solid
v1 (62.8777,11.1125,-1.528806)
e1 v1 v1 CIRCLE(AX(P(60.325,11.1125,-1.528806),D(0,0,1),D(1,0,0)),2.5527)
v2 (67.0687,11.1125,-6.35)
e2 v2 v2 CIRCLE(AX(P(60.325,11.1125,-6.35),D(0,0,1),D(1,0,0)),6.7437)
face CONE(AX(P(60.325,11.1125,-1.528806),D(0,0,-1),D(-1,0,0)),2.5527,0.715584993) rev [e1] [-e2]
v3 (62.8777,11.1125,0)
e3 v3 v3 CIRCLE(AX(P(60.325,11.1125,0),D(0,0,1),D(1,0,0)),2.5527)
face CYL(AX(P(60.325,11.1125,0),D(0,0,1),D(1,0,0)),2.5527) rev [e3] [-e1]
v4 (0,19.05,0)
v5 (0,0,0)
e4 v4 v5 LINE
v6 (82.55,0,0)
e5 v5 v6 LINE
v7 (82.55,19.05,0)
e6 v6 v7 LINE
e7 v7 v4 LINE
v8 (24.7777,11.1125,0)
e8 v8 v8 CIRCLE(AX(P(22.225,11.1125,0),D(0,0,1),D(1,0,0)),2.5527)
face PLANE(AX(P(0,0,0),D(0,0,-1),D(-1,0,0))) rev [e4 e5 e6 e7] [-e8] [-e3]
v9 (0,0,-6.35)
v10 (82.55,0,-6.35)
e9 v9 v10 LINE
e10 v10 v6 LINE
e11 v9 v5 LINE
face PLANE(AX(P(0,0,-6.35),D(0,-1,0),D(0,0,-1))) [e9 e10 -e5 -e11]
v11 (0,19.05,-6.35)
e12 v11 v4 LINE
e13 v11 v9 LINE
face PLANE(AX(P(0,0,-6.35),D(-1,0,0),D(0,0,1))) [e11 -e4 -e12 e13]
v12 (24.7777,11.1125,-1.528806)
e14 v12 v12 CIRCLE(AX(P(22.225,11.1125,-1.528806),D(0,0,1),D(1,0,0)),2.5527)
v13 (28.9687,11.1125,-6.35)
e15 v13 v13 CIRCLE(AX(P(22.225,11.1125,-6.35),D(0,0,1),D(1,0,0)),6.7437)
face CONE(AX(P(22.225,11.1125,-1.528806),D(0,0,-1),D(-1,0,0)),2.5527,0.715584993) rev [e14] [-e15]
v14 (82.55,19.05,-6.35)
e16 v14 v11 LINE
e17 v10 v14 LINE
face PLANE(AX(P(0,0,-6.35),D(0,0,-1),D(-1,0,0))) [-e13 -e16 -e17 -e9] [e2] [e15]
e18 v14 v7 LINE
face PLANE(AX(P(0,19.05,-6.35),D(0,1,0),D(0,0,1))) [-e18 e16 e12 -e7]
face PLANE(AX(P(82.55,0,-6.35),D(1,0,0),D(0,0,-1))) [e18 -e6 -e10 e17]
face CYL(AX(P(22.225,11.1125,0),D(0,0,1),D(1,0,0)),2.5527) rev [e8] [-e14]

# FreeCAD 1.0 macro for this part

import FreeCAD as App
import Part
import Sketcher
from FreeCAD import Vector
Q = App.Units.Quantity


def add_polygon(sketch, points):
    """Adds a closed chain of lines whose ends are joined by coincident constraints."""
    first, n = sketch.GeometryCount, len(points)
    for a, b in zip(points, points[1:] + points[:1]):
        sketch.addGeometry(Part.LineSegment(App.Vector(*a, 0), App.Vector(*b, 0)), False)
    for i in range(n):
        sketch.addConstraint(Sketcher.Constraint("Coincident", first + i, 2, first + (i + 1) % n, 1))

doc = App.newDocument("Part")
body = doc.addObject("PartDesign::Body", "Body")

# Sketch on XY plane
sketch1 = doc.addObject("Sketcher::SketchObject", "Sketch")
body.addObject(sketch1)
sketch1.AttachmentSupport = (doc.XY_Plane, [""])
sketch1.MapMode = "FlatFace"
add_polygon(sketch1, [(0, 19), (0, 0), (83, 0), (83, 19)])  # lines 0-3
sketch1.addConstraint([
    Sketcher.Constraint("Vertical", 0),
    Sketcher.Constraint("Horizontal", 1),
    Sketcher.Constraint("Vertical", 2),
    Sketcher.Constraint("Horizontal", 3),
    Sketcher.Constraint("Coincident", 0, 2, -1, 1),
    Sketcher.Constraint("DistanceX", 1, 1, 1, 2, Q("3.25 in")),
    Sketcher.Constraint("DistanceY", 0, 2, 0, 1, Q("0.75 in")),
])
pad1 = doc.addObject("PartDesign::Pad", "Pad")
body.addObject(pad1)
pad1.Profile = sketch1
pad1.Length = Q("0.25 in")
pad1.Reversed = True

# Sketch on YZ plane
sketch2 = doc.addObject("Sketcher::SketchObject", "Sketch001")
body.addObject(sketch2)
sketch2.AttachmentSupport = (doc.YZ_Plane, [""])
sketch2.MapMode = "FlatFace"
sketch2.AttachmentOffset = App.Placement(Vector(0, 0, 0.875 * 25.4), App.Rotation())
add_polygon(sketch2, [(11.1, -6.3), (11.1, 0), (8.6, 0), (8.6, -1.5), (4.4, -6.3)])  # lines 0-4
sketch2.addGeometry(Part.LineSegment(Vector(11.1, 0, 0), Vector(11.1, -6.3, 0)), True)  # axis
sketch2.addConstraint([
    Sketcher.Constraint("Vertical", 0),
    Sketcher.Constraint("Horizontal", 1),
    Sketcher.Constraint("Vertical", 2),
    Sketcher.Constraint("Horizontal", 4),
    Sketcher.Constraint("Vertical", 5),
    Sketcher.Constraint("Coincident", 5, 1, 0, 2),
    Sketcher.Constraint("PointOnObject", 0, 2, -1),
    Sketcher.Constraint("Horizontal", 3, 2, 5, 2),
    Sketcher.Constraint("Angle", 3, Q("-131 deg")),
    Sketcher.Constraint("DistanceY", 0, 1, 0, 2, Q("0.25 in")),
    Sketcher.Constraint("DistanceX", 1, 2, 1, 1, Q("0.1005 in")),
    Sketcher.Constraint("DistanceX", 4, 1, 4, 2, Q("0.2655 in")),
    Sketcher.Constraint("DistanceX", -1, 1, 0, 2, Q("0.4375 in")),
])
groove = doc.addObject("PartDesign::Groove", "Groove")
body.addObject(groove)
groove.Profile = sketch2
groove.ReferenceAxis = (sketch2, ["Axis0"])
groove.Angle = 360
doc.recompute()

linearpattern = doc.addObject("PartDesign::LinearPattern", "LinearPattern")
body.addObject(linearpattern)
linearpattern.Originals = [groove]
linearpattern.Direction = (doc.X_Axis, [""])
linearpattern.Mode = "offset"
linearpattern.Offset = Q("1.5 in")
linearpattern.Occurrences = 2
body.Tip = linearpattern

doc.recompute()
